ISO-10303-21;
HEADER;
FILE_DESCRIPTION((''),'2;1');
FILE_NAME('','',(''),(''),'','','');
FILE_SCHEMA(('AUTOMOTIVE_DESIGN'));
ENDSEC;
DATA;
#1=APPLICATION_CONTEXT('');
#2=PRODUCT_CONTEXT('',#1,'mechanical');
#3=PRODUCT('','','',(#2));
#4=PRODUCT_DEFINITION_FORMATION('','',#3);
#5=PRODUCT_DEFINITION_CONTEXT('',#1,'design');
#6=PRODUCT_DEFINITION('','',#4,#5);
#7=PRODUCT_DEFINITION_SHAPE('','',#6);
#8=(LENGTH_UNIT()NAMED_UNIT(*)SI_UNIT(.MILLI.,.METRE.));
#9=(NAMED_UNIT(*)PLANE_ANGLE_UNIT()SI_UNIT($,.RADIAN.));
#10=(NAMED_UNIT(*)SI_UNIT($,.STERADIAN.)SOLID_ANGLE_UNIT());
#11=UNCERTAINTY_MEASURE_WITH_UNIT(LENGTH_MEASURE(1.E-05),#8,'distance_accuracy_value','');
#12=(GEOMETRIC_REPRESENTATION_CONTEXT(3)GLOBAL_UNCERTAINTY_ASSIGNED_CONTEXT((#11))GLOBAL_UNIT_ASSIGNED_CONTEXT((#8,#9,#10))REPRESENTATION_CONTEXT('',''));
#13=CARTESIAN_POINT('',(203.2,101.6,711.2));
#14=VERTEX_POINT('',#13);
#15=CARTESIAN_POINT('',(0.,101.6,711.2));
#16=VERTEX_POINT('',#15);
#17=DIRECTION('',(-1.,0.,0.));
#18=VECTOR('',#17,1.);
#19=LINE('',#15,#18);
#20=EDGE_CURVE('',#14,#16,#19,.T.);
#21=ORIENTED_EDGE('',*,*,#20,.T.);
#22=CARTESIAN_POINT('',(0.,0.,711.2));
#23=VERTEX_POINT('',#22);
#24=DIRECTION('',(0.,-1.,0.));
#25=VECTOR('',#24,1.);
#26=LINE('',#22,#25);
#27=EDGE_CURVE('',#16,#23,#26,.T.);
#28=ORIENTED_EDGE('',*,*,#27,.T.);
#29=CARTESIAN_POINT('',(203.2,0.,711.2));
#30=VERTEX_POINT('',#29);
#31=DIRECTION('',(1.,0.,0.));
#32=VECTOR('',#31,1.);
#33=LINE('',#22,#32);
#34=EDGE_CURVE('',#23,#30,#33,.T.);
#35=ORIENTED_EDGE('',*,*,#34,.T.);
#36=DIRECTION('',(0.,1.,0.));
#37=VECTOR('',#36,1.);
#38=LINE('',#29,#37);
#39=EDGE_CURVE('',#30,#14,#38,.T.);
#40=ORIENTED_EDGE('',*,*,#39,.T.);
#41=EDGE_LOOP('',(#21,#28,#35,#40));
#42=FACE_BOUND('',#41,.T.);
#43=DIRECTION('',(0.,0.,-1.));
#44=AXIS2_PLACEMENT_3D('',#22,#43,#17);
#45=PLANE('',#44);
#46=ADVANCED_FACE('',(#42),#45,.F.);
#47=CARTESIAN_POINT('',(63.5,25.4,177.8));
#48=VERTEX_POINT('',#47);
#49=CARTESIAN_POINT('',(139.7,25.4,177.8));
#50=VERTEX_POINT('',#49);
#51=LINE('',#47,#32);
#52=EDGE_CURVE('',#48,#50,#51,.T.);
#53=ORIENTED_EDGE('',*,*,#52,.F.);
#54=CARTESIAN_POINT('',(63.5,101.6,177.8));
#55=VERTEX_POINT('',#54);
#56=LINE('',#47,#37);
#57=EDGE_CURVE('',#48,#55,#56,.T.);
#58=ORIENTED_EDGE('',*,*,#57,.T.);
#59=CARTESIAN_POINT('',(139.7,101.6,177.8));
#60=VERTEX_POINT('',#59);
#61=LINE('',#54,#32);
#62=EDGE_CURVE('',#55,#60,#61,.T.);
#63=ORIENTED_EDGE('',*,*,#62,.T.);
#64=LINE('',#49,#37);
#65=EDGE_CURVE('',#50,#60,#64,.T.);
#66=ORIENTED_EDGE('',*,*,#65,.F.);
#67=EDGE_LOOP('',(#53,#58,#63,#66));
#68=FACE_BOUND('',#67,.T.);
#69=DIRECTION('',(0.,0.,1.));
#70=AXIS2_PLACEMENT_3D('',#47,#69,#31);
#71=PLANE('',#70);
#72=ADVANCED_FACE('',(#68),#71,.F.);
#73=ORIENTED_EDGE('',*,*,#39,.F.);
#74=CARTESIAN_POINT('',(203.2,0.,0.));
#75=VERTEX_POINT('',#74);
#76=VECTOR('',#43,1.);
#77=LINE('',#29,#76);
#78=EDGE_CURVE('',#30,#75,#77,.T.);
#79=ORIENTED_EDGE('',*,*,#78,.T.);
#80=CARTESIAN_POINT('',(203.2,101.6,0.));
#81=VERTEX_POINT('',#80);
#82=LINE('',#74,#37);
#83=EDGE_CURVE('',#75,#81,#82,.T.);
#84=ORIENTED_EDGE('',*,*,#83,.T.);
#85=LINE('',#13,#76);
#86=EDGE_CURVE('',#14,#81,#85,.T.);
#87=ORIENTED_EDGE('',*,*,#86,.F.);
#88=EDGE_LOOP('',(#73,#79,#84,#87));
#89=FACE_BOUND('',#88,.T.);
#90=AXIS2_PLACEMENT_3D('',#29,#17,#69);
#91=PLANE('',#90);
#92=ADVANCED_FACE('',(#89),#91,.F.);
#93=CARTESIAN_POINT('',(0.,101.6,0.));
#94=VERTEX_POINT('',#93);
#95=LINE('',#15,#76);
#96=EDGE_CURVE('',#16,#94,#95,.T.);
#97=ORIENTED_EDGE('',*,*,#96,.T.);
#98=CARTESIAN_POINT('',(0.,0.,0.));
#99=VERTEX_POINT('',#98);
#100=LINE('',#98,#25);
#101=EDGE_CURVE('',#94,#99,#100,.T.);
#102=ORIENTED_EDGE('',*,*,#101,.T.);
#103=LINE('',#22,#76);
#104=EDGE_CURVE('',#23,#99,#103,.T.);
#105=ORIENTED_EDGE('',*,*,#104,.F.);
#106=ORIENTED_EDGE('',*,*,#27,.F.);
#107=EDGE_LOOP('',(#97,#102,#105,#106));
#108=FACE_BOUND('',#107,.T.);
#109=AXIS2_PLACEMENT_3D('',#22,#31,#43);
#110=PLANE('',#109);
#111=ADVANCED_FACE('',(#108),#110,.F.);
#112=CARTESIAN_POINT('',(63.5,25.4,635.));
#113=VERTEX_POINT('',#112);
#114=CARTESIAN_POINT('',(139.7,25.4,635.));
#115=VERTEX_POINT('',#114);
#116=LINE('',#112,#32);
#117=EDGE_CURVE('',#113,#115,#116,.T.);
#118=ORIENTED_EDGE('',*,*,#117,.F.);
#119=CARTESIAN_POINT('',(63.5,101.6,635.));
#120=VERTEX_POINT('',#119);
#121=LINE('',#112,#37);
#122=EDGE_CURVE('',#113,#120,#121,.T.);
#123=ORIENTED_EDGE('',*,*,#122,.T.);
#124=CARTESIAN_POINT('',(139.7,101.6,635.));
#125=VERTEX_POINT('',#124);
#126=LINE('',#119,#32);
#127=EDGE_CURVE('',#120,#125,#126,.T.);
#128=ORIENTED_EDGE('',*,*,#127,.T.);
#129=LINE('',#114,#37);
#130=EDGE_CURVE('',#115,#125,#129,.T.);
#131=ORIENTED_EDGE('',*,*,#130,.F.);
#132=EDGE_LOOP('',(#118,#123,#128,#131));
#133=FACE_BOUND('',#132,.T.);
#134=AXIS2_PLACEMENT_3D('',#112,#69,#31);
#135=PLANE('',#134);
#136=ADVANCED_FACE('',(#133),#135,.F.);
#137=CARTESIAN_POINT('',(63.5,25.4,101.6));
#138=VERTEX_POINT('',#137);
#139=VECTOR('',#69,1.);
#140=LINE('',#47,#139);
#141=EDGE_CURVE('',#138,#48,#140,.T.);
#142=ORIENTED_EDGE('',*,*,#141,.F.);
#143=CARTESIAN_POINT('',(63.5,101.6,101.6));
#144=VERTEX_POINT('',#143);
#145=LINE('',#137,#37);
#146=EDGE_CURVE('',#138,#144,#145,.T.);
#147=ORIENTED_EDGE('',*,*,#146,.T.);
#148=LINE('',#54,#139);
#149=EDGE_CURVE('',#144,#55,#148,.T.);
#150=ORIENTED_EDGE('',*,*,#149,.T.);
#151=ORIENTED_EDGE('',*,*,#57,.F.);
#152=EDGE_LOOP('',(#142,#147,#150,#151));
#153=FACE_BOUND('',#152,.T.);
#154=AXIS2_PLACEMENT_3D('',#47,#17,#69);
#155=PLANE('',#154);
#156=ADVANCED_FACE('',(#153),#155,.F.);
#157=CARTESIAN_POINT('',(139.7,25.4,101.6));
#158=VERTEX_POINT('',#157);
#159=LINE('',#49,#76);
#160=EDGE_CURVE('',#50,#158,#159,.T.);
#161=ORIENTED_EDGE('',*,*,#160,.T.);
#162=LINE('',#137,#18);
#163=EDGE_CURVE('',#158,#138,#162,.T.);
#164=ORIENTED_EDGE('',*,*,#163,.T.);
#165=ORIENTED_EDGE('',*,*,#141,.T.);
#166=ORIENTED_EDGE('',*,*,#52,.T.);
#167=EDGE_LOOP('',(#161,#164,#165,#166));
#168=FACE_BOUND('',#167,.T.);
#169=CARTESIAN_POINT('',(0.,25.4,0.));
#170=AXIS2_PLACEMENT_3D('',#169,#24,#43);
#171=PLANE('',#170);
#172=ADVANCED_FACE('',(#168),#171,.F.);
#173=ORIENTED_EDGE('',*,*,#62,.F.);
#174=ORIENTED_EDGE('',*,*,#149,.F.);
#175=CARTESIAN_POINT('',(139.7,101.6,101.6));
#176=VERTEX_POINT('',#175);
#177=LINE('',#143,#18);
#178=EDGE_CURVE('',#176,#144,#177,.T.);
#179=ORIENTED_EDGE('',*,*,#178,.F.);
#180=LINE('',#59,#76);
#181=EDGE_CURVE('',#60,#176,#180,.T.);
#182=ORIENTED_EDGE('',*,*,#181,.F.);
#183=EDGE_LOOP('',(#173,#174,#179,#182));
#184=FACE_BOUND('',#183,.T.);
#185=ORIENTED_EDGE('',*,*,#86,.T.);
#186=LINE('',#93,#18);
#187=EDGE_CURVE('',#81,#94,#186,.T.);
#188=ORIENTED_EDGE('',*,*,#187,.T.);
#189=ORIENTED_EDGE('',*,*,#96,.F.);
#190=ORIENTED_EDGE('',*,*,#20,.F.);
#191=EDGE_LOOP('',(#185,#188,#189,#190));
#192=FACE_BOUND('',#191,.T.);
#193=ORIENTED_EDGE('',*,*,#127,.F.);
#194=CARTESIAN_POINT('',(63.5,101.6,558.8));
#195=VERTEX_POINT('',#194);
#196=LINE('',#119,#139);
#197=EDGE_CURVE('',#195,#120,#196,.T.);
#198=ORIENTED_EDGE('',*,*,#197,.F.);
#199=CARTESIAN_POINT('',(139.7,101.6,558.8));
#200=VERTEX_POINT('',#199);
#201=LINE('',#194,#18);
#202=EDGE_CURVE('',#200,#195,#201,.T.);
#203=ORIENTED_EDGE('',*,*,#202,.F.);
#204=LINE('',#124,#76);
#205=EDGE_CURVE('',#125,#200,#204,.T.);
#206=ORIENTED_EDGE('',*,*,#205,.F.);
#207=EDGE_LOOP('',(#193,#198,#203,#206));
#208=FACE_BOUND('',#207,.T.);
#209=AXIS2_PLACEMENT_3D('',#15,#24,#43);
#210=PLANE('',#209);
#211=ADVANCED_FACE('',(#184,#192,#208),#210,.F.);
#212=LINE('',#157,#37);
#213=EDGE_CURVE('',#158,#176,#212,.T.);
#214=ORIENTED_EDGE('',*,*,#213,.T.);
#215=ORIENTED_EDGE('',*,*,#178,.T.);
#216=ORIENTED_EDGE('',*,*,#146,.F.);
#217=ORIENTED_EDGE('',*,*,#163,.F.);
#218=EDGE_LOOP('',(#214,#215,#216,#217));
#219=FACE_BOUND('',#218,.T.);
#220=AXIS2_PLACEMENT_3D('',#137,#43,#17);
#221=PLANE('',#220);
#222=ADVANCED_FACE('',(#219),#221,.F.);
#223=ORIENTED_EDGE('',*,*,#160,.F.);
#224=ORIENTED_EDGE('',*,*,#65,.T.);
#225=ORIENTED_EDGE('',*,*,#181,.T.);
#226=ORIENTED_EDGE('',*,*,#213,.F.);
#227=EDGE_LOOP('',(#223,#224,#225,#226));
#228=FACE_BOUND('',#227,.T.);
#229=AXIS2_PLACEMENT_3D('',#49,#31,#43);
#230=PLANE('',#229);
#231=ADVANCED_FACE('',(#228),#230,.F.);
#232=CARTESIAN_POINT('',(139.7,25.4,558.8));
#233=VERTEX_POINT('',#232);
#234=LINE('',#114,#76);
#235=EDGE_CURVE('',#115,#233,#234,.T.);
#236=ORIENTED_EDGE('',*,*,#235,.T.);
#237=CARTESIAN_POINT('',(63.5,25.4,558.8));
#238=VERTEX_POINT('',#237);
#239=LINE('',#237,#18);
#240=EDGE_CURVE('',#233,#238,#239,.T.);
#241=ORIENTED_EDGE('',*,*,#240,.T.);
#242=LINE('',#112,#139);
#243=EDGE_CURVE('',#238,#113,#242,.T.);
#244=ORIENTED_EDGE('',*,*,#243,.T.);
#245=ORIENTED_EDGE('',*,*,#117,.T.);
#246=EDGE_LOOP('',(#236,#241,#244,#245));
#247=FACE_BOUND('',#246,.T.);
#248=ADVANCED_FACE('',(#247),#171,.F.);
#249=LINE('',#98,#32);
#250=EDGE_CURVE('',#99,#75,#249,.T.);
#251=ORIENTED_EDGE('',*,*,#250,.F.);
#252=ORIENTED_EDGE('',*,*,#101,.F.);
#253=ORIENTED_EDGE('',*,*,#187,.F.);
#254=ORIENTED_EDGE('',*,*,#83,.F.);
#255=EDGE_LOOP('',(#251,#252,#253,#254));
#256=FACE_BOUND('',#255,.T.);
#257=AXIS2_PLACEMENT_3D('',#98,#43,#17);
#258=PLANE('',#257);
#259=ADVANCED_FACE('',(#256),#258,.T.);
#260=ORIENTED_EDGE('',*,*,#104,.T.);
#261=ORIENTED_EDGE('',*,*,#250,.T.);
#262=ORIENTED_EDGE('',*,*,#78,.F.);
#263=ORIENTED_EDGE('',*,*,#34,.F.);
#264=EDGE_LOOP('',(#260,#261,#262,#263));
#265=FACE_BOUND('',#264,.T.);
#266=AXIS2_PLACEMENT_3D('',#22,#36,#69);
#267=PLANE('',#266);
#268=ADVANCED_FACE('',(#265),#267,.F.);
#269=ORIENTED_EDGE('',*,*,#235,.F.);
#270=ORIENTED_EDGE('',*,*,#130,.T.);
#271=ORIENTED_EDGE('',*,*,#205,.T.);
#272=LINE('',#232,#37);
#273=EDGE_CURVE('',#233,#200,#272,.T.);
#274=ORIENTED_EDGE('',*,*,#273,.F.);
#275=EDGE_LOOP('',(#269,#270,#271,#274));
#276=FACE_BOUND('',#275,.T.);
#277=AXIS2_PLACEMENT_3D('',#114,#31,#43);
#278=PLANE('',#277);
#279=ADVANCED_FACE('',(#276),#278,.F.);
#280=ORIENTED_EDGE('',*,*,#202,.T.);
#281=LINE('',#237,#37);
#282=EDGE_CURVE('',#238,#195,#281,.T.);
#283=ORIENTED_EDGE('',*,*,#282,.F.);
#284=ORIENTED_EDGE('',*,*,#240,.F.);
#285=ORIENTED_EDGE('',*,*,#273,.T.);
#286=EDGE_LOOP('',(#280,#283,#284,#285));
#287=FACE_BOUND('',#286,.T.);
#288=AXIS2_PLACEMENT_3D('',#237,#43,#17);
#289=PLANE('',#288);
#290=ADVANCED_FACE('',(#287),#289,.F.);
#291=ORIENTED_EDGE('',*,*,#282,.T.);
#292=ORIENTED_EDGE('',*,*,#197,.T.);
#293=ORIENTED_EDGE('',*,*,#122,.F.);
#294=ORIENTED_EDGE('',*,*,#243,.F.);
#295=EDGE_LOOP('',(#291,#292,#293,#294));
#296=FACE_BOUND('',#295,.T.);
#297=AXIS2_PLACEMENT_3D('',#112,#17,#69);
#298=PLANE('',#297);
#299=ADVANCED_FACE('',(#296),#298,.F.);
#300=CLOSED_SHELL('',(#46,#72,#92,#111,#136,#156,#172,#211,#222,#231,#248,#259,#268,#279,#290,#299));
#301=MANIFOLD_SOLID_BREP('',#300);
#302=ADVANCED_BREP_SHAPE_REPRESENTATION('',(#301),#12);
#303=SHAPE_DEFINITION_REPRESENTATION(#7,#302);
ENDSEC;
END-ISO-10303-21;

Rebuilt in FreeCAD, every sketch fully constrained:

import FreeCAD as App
import Part
import Sketcher

V = App.Vector
Q = App.Units.Quantity


def add_polygon(sketch, points):
    """Adds a closed chain of lines whose ends are joined by coincident constraints."""
    first, n = sketch.GeometryCount, len(points)
    for a, b in zip(points, points[1:] + points[:1]):
        sketch.addGeometry(Part.LineSegment(App.Vector(*a, 0), App.Vector(*b, 0)), False)
    for i in range(n):
        sketch.addConstraint(Sketcher.Constraint("Coincident", first + i, 2, first + (i + 1) % n, 1))

doc = App.newDocument("Part")
body = doc.addObject("PartDesign::Body", "Body")

# Sketch on XY plane
sketch1 = body.newObject("Sketcher::SketchObject", "Sketch")
sketch1.AttachmentSupport = (doc.getObject("XY_Plane"), [""])
sketch1.MapMode = "FlatFace"
add_polygon(sketch1, [(0, 102), (0, 0), (203, 0), (203, 102)])  # lines 0-3
sketch1.addConstraint([
    Sketcher.Constraint("Vertical", 0),
    Sketcher.Constraint("Horizontal", 1),
    Sketcher.Constraint("Vertical", 2),
    Sketcher.Constraint("Horizontal", 3),
    Sketcher.Constraint("Coincident", 0, 2, -1, 1),
    Sketcher.Constraint("DistanceX", 1, 1, 1, 2, Q("8 in")),
    Sketcher.Constraint("DistanceY", 0, 2, 0, 1, Q("4 in")),
])
pad1 = body.newObject("PartDesign::Pad", "Pad")
pad1.Profile = sketch1
pad1.Length = Q("28 in")

# Sketch on XZ plane
sketch2 = body.newObject("Sketcher::SketchObject", "Sketch001")
sketch2.AttachmentSupport = (doc.getObject("XZ_Plane"), [""])
sketch2.MapMode = "FlatFace"
sketch2.AttachmentOffset = App.Placement(V(0, 0, -4 * 25.4), App.Rotation())
add_polygon(sketch2, [(64, 102), (64, 178), (140, 178), (140, 102)])  # lines 0-3
add_polygon(sketch2, [(64, 559), (64, 635), (140, 635), (140, 559)])  # lines 4-7
sketch2.addConstraint([
    Sketcher.Constraint("Vertical", 0),
    Sketcher.Constraint("Horizontal", 1),
    Sketcher.Constraint("Vertical", 2),
    Sketcher.Constraint("Horizontal", 3),
    Sketcher.Constraint("Vertical", 4),
    Sketcher.Constraint("Horizontal", 5),
    Sketcher.Constraint("Vertical", 6),
    Sketcher.Constraint("Horizontal", 7),
    Sketcher.Constraint("Vertical", 3, 2, 4, 2),
    Sketcher.Constraint("Vertical", 2, 2, 5, 2),
    Sketcher.Constraint("Equal", 7, 0),
    Sketcher.Constraint("Equal", 2, 4),
    Sketcher.Constraint("DistanceX", 1, 1, 1, 2, Q("3 in")),
    Sketcher.Constraint("DistanceY", -1, 1, 0, 2, Q("7 in")),
    Sketcher.Constraint("DistanceY", -1, 1, 4, 2, Q("25 in")),
    Sketcher.Constraint("DistanceX", -1, 1, 0, 2, Q("2.5 in")),
])
pocket1 = body.newObject("PartDesign::Pocket", "Pocket")
pocket1.Profile = sketch2
pocket1.Length = Q("3 in")
pocket1.Reversed = True

doc.recompute()
